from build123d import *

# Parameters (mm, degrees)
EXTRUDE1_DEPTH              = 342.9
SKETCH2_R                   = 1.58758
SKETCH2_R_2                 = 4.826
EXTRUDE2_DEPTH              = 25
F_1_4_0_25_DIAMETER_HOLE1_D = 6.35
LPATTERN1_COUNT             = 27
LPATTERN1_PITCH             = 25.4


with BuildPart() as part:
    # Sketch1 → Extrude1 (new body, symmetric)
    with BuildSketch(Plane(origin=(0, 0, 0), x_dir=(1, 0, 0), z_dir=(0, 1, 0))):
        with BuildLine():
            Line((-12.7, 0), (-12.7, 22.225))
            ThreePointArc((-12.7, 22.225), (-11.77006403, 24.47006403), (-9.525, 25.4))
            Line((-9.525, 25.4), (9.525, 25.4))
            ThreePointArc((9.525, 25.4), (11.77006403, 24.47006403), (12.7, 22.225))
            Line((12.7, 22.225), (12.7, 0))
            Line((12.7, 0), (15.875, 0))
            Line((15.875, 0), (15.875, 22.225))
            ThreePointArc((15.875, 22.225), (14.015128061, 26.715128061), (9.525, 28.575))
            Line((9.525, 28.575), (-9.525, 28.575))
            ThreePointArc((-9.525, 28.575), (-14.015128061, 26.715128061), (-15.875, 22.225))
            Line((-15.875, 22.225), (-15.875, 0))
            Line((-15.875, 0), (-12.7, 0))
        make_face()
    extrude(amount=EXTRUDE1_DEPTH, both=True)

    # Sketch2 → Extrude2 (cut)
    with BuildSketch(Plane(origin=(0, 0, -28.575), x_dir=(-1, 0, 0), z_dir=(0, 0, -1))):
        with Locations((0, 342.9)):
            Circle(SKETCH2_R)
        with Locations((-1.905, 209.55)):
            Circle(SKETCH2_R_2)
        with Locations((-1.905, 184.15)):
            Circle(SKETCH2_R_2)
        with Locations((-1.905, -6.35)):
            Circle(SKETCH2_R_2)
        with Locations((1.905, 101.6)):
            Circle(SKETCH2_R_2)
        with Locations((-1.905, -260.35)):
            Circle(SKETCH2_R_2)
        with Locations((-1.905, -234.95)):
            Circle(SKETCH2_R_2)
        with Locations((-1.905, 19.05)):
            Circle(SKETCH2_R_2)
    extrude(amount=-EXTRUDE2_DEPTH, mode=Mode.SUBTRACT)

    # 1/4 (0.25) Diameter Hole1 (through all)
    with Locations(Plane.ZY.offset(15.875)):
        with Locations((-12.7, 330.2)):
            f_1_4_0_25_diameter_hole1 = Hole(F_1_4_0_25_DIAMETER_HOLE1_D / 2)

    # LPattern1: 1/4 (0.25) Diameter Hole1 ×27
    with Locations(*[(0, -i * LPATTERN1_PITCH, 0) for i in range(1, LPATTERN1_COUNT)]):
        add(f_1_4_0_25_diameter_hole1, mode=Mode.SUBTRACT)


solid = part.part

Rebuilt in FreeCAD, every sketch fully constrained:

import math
import FreeCAD as App
import Part
import Sketcher
from FreeCAD import Vector
Q = App.Units.Quantity

doc = App.newDocument("Part")
body = doc.addObject("PartDesign::Body", "Body")

# Sketch on XZ plane
sketch1 = doc.addObject("Sketcher::SketchObject", "Sketch")
body.addObject(sketch1)
sketch1.AttachmentSupport = (doc.XZ_Plane, [""])
sketch1.MapMode = "FlatFace"
sketch1.addGeometry([
    Part.LineSegment(Vector(-12.7, 0, 0), Vector(-12.7, -22.2, 0)),  # 0
    Part.ArcOfCircle(Part.Circle(Vector(-9.5, -22.2, 0), Vector(0, 0, 1), 3.2), math.radians(-180), math.radians(-90)),  # 1
    Part.LineSegment(Vector(-9.5, -25.4, 0), Vector(9.5, -25.4, 0)),  # 2
    Part.ArcOfCircle(Part.Circle(Vector(9.5, -22.2, 0), Vector(0, 0, 1), 3.2), math.radians(-90), math.radians(0)),  # 3
    Part.LineSegment(Vector(12.7, -22.2, 0), Vector(12.7, 0, 0)),  # 4
    Part.LineSegment(Vector(12.7, 0, 0), Vector(15.9, 0, 0)),  # 5
    Part.LineSegment(Vector(15.9, 0, 0), Vector(15.9, -22.2, 0)),  # 6
    Part.ArcOfCircle(Part.Circle(Vector(9.5, -22.2, 0), Vector(0, 0, 1), 6.3), math.radians(-90), math.radians(0)),  # 7
    Part.LineSegment(Vector(9.5, -28.6, 0), Vector(-9.5, -28.6, 0)),  # 8
    Part.ArcOfCircle(Part.Circle(Vector(-9.5, -22.2, 0), Vector(0, 0, 1), 6.3), math.radians(180), math.radians(270)),  # 9
    Part.LineSegment(Vector(-15.9, -22.2, 0), Vector(-15.9, 0, 0)),  # 10
    Part.LineSegment(Vector(-15.9, 0, 0), Vector(-12.7, 0, 0)),  # 11
], False)
sketch1.addConstraint([
    Sketcher.Constraint("Tangent", 0, 2, 1, 1),
    Sketcher.Constraint("Tangent", 1, 2, 2, 1),
    Sketcher.Constraint("Tangent", 2, 2, 3, 1),
    Sketcher.Constraint("Tangent", 3, 2, 4, 1),
    Sketcher.Constraint("Coincident", 4, 2, 5, 1),
    Sketcher.Constraint("Coincident", 5, 2, 6, 1),
    Sketcher.Constraint("Tangent", 6, 2, 7, 2),
    Sketcher.Constraint("Tangent", 7, 1, 8, 1),
    Sketcher.Constraint("Tangent", 8, 2, 9, 2),
    Sketcher.Constraint("Tangent", 9, 1, 10, 1),
    Sketcher.Constraint("Coincident", 10, 2, 11, 1),
    Sketcher.Constraint("Coincident", 11, 2, 0, 1),
    Sketcher.Constraint("Vertical", 0),
    Sketcher.Constraint("Horizontal", 2),
    Sketcher.Constraint("Vertical", 4),
    Sketcher.Constraint("Horizontal", 5),
    Sketcher.Constraint("Vertical", 6),
    Sketcher.Constraint("Horizontal", 8),
    Sketcher.Constraint("Vertical", 10),
    Sketcher.Constraint("Horizontal", 11),
    Sketcher.Constraint("Coincident", 7, 3, 3, 3),
    Sketcher.Constraint("Coincident", 9, 3, 1, 3),
    Sketcher.Constraint("Equal", 1, 3),
    Sketcher.Constraint("Symmetric", 5, 2, 10, 2, -1, 1),
    Sketcher.Constraint("PointOnObject", 4, 2, -1),
    Sketcher.Constraint("Radius", 7, Q("0.25 in")),
    Sketcher.Constraint("DistanceY", 1, 2, -1, 1, Q("1 in")),
    Sketcher.Constraint("Radius", 1, Q("0.125 in")),
    Sketcher.Constraint("DistanceX", 2, 1, 2, 2, Q("0.75 in")),
])
pad1 = doc.addObject("PartDesign::Pad", "Pad")
body.addObject(pad1)
pad1.Profile = sketch1
pad1.Length = Q("27 in")
pad1.Midplane = True

# Sketch on XY plane
sketch2 = doc.addObject("Sketcher::SketchObject", "Sketch001")
body.addObject(sketch2)
sketch2.AttachmentSupport = (doc.XY_Plane, [""])
sketch2.MapMode = "FlatFace"
sketch2.AttachmentOffset = App.Placement(Vector(0, 0, -1.125 * 25.4), App.Rotation())
sketch2.addGeometry([
    Part.Circle(Vector(0, 342.9, 0), Vector(0, 0, 1), 1.6),  # 0
    Part.Circle(Vector(1.9, 209.6, 0), Vector(0, 0, 1), 4.8),  # 1
    Part.Circle(Vector(1.9, 184.2, 0), Vector(0, 0, 1), 4.8),  # 2
    Part.Circle(Vector(1.9, -6.3, 0), Vector(0, 0, 1), 4.8),  # 3
    Part.Circle(Vector(-1.9, 101.6, 0), Vector(0, 0, 1), 4.8),  # 4
    Part.Circle(Vector(1.9, -260.4, 0), Vector(0, 0, 1), 4.8),  # 5
    Part.Circle(Vector(1.9, -234.9, 0), Vector(0, 0, 1), 4.8),  # 6
    Part.Circle(Vector(1.9, 19.1, 0), Vector(0, 0, 1), 4.8),  # 7
], False)
sketch2.addConstraint([
    Sketcher.Constraint("Equal", 1, 2),
    Sketcher.Constraint("Equal", 2, 3),
    Sketcher.Constraint("Equal", 3, 4),
    Sketcher.Constraint("Equal", 4, 5),
    Sketcher.Constraint("Equal", 5, 6),
    Sketcher.Constraint("Equal", 6, 7),
    Sketcher.Constraint("PointOnObject", 0, 3, -2),
    Sketcher.Constraint("Vertical", 1, 3, 2, 3),
    Sketcher.Constraint("Vertical", 2, 3, 3, 3),
    Sketcher.Constraint("Vertical", 3, 3, 5, 3),
    Sketcher.Constraint("Vertical", 5, 3, 6, 3),
    Sketcher.Constraint("Vertical", 6, 3, 7, 3),
    Sketcher.Constraint("Diameter", 1, Q("0.38 in")),
    Sketcher.Constraint("DistanceY", -1, 1, 4, 3, Q("4 in")),
    Sketcher.Constraint("DistanceY", 2, 3, 1, 3, Q("1 in")),
    Sketcher.Constraint("DistanceY", 5, 3, 3, 3, Q("10 in")),
    Sketcher.Constraint("DistanceY", 5, 3, 6, 3, Q("1 in")),
    Sketcher.Constraint("DistanceY", 3, 3, 7, 3, Q("1 in")),
    Sketcher.Constraint("DistanceY", -1, 1, 0, 3, Q("13.5 in")),
    Sketcher.Constraint("DistanceY", 3, 3, 2, 3, Q("7.5 in")),
    Sketcher.Constraint("DistanceY", -1, 1, 1, 3, Q("8.25 in")),
    Sketcher.Constraint("DistanceX", 4, 3, 2, 3, Q("0.15 in")),
    Sketcher.Constraint("Diameter", 0, 3.17516),
    Sketcher.Constraint("DistanceX", -1, 1, 1, 3, Q("0.075 in")),
])
pocket1 = doc.addObject("PartDesign::Pocket", "Pocket")
body.addObject(pocket1)
pocket1.Profile = sketch2
pocket1.Length = 25
pocket1.Reversed = True

# Sketch on YZ plane
sketch3 = doc.addObject("Sketcher::SketchObject", "Sketch002")
body.addObject(sketch3)
sketch3.AttachmentSupport = (doc.YZ_Plane, [""])
sketch3.MapMode = "FlatFace"
sketch3.AttachmentOffset = App.Placement(Vector(0, 0, -0.625 * 25.4), App.Rotation())
sketch3.addGeometry(Part.Circle(Vector(330.2, -12.7, 0), Vector(0, 0, 1), 3.2), False)
sketch3.addConstraint([
    Sketcher.Constraint("Diameter", 0, Q("0.25 in")),
    Sketcher.Constraint("DistanceX", -1, 1, 0, 3, Q("13 in")),
    Sketcher.Constraint("DistanceY", 0, 3, -1, 1, Q("0.5 in")),
])
doc.recompute()
hole = doc.addObject("PartDesign::Hole", "Hole")
body.addObject(hole)
hole.Profile = sketch3
hole.ThreadType = "None"
hole.Diameter = Q("0.25 in")
hole.DepthType = "ThroughAll"
hole.Reversed = True
doc.recompute()

linearpattern = doc.addObject("PartDesign::LinearPattern", "LinearPattern")
body.addObject(linearpattern)
linearpattern.Originals = [hole]
linearpattern.Direction = (doc.Y_Axis, [""])
linearpattern.Mode = "offset"
linearpattern.Offset = Q("1 in")
linearpattern.Occurrences = 27
linearpattern.Reversed = True
body.Tip = linearpattern

doc.recompute()
